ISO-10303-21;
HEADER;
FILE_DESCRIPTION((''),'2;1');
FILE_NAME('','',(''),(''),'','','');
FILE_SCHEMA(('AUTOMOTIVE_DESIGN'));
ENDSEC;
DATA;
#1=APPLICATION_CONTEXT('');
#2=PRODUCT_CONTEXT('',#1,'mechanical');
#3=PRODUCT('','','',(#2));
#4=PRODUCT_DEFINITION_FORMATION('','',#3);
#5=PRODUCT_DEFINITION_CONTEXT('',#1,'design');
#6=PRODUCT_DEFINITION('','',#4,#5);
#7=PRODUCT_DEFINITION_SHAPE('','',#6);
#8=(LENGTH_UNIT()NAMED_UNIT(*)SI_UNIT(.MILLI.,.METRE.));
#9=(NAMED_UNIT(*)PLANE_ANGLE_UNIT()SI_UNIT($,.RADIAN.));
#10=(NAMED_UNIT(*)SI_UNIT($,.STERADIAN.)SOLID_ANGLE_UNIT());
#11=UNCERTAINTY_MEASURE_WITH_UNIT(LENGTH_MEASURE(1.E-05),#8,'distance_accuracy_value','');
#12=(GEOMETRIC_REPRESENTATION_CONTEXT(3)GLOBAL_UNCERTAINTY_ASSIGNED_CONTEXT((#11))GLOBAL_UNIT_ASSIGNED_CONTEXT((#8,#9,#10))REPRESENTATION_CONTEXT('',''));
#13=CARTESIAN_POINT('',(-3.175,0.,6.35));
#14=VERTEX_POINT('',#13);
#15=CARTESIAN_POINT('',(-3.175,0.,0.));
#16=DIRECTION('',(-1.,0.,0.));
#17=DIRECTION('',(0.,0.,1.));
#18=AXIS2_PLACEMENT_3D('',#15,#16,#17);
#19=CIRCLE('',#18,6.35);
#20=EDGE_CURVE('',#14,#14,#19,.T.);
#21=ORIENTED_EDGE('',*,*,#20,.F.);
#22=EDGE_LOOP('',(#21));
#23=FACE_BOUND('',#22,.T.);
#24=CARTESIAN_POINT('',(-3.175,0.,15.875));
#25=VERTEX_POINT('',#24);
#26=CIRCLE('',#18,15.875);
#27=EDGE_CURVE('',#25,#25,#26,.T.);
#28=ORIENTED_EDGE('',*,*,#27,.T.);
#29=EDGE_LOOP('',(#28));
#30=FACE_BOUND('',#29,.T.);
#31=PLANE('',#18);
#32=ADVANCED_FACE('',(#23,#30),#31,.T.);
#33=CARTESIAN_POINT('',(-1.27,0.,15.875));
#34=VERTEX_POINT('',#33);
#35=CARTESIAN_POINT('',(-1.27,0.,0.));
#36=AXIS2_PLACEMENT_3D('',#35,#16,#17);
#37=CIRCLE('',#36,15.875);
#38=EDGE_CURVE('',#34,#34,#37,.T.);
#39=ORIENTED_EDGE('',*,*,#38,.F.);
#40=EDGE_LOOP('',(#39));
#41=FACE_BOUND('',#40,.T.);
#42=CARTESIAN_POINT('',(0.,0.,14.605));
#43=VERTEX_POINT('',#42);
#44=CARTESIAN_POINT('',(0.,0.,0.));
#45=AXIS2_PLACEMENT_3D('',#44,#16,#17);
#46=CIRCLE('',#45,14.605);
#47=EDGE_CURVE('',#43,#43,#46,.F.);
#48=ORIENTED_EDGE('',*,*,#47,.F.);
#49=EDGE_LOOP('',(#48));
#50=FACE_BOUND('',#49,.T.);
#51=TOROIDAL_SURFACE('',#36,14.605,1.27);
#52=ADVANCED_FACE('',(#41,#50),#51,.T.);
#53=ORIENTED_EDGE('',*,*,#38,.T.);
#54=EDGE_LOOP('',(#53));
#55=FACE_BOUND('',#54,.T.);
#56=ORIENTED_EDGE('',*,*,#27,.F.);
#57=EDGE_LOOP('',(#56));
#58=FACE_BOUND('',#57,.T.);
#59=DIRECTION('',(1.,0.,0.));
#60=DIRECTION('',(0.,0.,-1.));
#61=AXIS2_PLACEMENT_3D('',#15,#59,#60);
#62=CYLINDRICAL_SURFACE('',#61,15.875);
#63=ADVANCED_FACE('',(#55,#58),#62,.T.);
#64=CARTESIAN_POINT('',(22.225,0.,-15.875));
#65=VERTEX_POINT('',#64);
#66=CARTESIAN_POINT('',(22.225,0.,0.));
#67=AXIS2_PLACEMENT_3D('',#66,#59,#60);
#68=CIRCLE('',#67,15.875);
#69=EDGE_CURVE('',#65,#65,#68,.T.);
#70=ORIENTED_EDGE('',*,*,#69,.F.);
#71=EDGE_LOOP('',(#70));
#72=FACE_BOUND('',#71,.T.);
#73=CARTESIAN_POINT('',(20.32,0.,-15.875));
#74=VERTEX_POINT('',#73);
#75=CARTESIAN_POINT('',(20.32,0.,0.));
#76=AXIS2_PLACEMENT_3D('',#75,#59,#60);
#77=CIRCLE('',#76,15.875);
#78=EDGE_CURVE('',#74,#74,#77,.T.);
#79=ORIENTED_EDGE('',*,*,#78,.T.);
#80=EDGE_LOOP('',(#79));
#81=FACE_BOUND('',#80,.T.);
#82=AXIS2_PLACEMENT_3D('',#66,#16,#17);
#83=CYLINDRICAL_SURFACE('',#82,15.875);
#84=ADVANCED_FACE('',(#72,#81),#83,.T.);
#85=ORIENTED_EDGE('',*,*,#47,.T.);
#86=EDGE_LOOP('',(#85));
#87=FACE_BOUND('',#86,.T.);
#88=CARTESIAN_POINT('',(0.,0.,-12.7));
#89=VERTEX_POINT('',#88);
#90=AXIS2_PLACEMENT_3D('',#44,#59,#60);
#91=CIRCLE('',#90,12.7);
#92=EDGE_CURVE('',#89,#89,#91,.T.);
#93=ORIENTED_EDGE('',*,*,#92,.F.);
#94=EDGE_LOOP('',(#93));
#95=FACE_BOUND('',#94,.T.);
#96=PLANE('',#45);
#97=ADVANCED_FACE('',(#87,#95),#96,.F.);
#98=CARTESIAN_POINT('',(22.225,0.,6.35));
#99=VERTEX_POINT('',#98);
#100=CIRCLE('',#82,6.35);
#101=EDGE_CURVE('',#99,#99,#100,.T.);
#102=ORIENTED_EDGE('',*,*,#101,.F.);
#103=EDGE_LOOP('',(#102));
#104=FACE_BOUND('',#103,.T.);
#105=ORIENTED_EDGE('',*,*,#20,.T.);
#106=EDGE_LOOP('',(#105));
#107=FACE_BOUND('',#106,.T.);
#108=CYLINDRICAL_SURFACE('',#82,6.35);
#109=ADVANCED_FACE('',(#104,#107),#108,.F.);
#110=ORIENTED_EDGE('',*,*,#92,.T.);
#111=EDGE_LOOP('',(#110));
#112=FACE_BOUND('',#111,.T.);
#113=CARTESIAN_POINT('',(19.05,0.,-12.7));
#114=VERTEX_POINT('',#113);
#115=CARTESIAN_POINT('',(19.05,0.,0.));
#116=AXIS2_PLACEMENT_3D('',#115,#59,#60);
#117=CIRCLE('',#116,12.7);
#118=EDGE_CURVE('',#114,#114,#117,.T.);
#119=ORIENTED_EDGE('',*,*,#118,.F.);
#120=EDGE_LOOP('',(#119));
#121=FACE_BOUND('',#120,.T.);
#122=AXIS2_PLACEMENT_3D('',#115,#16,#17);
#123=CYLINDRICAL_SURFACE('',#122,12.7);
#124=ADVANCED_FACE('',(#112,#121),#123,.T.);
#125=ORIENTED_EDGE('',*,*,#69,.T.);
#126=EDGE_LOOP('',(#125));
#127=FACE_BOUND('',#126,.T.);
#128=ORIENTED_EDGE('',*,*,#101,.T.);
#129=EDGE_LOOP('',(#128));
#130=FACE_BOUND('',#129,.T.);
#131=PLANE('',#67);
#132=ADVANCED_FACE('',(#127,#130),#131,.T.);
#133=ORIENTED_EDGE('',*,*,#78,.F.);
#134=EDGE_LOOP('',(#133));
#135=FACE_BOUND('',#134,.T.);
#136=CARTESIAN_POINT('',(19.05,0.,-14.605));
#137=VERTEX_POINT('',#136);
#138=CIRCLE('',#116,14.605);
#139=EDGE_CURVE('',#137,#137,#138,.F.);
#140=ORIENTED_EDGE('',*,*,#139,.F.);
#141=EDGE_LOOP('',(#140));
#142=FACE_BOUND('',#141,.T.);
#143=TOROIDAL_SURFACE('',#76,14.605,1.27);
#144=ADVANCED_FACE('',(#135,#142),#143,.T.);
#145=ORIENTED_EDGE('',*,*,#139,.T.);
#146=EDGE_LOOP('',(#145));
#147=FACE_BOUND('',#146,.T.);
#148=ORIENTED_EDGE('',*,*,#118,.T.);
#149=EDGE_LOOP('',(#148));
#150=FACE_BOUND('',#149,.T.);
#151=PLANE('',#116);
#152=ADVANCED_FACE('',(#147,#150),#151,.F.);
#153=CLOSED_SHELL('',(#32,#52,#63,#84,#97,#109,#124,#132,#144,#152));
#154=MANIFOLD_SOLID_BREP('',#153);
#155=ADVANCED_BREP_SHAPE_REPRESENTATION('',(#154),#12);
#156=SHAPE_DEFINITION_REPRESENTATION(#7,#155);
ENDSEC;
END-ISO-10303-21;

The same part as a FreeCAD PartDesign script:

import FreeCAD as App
import Part
import Sketcher

V = App.Vector
Q = App.Units.Quantity


def edges_at(feature, points):
    """Names of the edges that pass closest to the given points."""
    edges = feature.Shape.Edges
    near = lambda p: min(range(len(edges)), key=lambda i: edges[i].distToShape(Part.Vertex(*p))[0])
    return sorted({f"Edge{near(p) + 1}" for p in points})

doc = App.newDocument("Part")
body = doc.addObject("PartDesign::Body", "Body")

# Sketch on YZ plane
sketch1 = body.newObject("Sketcher::SketchObject", "Sketch")
sketch1.AttachmentSupport = (doc.getObject("YZ_Plane"), [""])
sketch1.MapMode = "FlatFace"
sketch1.addGeometry(Part.Circle(V(0, 0, 0), V(0, 0, 1), 13), False)
sketch1.addConstraint([
    Sketcher.Constraint("Coincident", 0, 3, -1, 1),
    Sketcher.Constraint("Diameter", 0, Q("1 in")),
])
pad1 = body.newObject("PartDesign::Pad", "Pad")
pad1.Profile = sketch1
pad1.Length = Q("0.75 in")

# Sketch on YZ plane
sketch2 = body.newObject("Sketcher::SketchObject", "Sketch001")
sketch2.AttachmentSupport = (doc.getObject("YZ_Plane"), [""])
sketch2.MapMode = "FlatFace"
sketch2.addGeometry(Part.Circle(V(0, 0, 0), V(0, 0, 1), 16), False)
sketch2.addConstraint([
    Sketcher.Constraint("Coincident", 0, 3, -1, 1),
    Sketcher.Constraint("Diameter", 0, Q("1.25 in")),
])
pad2 = body.newObject("PartDesign::Pad", "Pad001")
pad2.Profile = sketch2
pad2.Length = Q("0.125 in")
pad2.Reversed = True

# Sketch on YZ plane
sketch3 = body.newObject("Sketcher::SketchObject", "Sketch002")
sketch3.AttachmentSupport = (doc.getObject("YZ_Plane"), [""])
sketch3.MapMode = "FlatFace"
sketch3.AttachmentOffset = App.Placement(V(0, 0, 0.75 * 25.4), App.Rotation())
sketch3.addGeometry(Part.Circle(V(0, 0, 0), V(0, 0, 1), 16), False)
sketch3.addConstraint([
    Sketcher.Constraint("Coincident", 0, 3, -1, 1),
    Sketcher.Constraint("Diameter", 0, Q("1.25 in")),
])
pad3 = body.newObject("PartDesign::Pad", "Pad002")
pad3.Profile = sketch3
pad3.Length = Q("0.125 in")

# Sketch on YZ plane
sketch4 = body.newObject("Sketcher::SketchObject", "Sketch003")
sketch4.AttachmentSupport = (doc.getObject("YZ_Plane"), [""])
sketch4.MapMode = "FlatFace"
sketch4.AttachmentOffset = App.Placement(V(0, 0, -0.125 * 25.4), App.Rotation())
sketch4.addGeometry(Part.Circle(V(0, 0, 0), V(0, 0, 1), 6), False)
sketch4.addConstraint([
    Sketcher.Constraint("Coincident", 0, 3, -1, 1),
    Sketcher.Constraint("Diameter", 0, Q("0.5 in")),
])
pocket1 = body.newObject("PartDesign::Pocket", "Pocket")
pocket1.Profile = sketch4
pocket1.Type = "ThroughAll"
pocket1.Reversed = True
doc.recompute()

fillet = body.newObject("PartDesign::Fillet", "Fillet")
fillet.Base = (pocket1, edges_at(pocket1, [(0, 0, -15.875), (19.05, 0, 15.875)]))
fillet.Radius = Q("0.05 in")

doc.recompute()
